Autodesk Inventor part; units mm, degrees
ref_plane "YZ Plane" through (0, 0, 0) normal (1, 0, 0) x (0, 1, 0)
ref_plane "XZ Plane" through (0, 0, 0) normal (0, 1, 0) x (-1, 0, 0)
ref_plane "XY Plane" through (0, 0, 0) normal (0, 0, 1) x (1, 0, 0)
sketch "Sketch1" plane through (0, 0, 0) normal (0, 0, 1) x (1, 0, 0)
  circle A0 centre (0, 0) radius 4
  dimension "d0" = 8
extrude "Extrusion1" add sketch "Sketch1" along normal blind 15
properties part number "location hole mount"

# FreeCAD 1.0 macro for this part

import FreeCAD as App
import Part
import Sketcher
Q = App.Units.Quantity

doc = App.newDocument("Part")
body = doc.addObject("PartDesign::Body", "Body")

# Sketch on XY plane
sketch1 = doc.addObject("Sketcher::SketchObject", "Sketch")
body.addObject(sketch1)
sketch1.AttachmentSupport = (doc.XY_Plane, [""])
sketch1.MapMode = "FlatFace"
sketch1.addGeometry(Part.Circle(App.Vector(0, 0, 0), App.Vector(0, 0, 1), 4), False)
sketch1.addConstraint([
    Sketcher.Constraint("Coincident", 0, 3, -1, 1),
    Sketcher.Constraint("Diameter", 0, Q("8 mm")),
])
pad1 = doc.addObject("PartDesign::Pad", "Pad")
body.addObject(pad1)
pad1.Profile = sketch1
pad1.Length = 15

doc.recompute()
